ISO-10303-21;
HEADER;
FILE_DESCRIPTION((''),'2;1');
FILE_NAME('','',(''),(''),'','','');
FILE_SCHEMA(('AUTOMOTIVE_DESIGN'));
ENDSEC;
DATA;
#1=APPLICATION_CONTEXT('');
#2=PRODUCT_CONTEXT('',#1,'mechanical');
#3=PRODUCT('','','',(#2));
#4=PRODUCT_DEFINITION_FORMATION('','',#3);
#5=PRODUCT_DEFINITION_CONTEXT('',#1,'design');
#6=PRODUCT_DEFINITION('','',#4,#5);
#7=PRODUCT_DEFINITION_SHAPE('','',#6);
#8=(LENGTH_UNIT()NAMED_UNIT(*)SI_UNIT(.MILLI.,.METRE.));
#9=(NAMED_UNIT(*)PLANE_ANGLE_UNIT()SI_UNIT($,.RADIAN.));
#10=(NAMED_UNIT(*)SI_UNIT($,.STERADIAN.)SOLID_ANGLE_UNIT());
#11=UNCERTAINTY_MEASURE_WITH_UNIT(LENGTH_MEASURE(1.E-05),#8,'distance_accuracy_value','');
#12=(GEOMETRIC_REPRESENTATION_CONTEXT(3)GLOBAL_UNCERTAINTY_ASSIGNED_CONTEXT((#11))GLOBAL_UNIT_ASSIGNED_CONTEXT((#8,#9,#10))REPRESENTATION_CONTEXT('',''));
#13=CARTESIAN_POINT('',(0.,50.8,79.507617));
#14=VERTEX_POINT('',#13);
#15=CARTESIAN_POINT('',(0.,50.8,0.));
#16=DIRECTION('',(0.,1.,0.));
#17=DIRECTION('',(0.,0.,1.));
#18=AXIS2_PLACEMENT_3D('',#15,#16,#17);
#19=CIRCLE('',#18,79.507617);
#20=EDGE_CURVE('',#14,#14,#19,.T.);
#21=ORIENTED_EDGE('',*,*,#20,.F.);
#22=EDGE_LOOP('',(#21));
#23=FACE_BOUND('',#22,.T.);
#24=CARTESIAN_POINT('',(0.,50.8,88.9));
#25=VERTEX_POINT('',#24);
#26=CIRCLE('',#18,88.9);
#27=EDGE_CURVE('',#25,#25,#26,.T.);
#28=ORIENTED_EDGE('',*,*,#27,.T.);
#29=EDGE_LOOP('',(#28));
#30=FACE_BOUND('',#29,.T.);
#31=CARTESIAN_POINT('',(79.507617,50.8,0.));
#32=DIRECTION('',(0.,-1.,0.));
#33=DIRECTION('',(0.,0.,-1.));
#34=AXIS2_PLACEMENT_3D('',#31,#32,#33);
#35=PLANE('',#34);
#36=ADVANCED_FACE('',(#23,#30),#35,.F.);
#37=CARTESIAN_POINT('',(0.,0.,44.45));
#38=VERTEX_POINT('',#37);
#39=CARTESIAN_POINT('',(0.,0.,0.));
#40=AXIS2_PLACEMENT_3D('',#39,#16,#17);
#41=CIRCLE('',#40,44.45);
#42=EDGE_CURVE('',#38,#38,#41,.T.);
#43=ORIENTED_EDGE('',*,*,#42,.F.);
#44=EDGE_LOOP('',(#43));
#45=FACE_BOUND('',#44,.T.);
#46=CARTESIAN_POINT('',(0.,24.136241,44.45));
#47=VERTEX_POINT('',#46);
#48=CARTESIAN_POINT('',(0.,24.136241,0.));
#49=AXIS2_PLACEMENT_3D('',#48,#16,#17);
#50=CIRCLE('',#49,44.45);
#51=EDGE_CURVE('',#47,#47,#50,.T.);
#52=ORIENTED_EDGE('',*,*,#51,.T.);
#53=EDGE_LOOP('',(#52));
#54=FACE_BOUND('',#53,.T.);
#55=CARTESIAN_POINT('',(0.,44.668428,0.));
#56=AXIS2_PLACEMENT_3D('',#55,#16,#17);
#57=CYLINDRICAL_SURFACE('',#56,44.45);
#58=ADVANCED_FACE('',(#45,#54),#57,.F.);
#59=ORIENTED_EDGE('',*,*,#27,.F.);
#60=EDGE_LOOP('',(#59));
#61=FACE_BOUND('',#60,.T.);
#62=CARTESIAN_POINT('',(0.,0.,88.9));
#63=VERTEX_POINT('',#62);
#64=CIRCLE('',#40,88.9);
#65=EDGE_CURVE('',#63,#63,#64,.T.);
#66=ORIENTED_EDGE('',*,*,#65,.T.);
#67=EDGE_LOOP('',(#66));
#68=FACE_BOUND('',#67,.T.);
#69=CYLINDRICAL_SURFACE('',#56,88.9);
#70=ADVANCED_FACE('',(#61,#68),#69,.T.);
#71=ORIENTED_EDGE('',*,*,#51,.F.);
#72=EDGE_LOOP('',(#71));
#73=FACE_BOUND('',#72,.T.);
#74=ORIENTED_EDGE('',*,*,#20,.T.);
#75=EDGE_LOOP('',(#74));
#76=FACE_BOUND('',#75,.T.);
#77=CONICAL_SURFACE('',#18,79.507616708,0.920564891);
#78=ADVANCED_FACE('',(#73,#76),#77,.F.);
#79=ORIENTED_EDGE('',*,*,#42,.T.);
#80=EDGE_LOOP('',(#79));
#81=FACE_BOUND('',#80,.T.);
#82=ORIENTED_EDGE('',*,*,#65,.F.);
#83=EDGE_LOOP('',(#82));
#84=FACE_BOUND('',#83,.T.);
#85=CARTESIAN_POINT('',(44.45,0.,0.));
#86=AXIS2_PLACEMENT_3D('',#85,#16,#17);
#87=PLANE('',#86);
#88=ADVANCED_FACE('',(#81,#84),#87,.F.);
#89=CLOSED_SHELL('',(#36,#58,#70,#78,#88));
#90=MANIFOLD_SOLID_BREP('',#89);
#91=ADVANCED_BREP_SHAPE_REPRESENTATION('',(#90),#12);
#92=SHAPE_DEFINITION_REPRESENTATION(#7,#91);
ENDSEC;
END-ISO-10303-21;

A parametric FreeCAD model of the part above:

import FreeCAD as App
import Part
import Sketcher
Q = App.Units.Quantity


def add_polygon(sketch, points):
    """Adds a closed chain of lines whose ends are joined by coincident constraints."""
    first, n = sketch.GeometryCount, len(points)
    for a, b in zip(points, points[1:] + points[:1]):
        sketch.addGeometry(Part.LineSegment(App.Vector(*a, 0), App.Vector(*b, 0)), False)
    for i in range(n):
        sketch.addConstraint(Sketcher.Constraint("Coincident", first + i, 2, first + (i + 1) % n, 1))

doc = App.newDocument("Part")
body = doc.addObject("PartDesign::Body", "Body")

# Sketch on XY plane
sketch1 = body.newObject("Sketcher::SketchObject", "Sketch")
sketch1.AttachmentSupport = (doc.getObject("XY_Plane"), [""])
sketch1.MapMode = "FlatFace"
add_polygon(sketch1, [(44, 24), (44, 0), (89, 0), (89, 51), (80, 51)])  # lines 0-4
sketch1.addConstraint([
    Sketcher.Constraint("Vertical", 0),
    Sketcher.Constraint("Horizontal", 1),
    Sketcher.Constraint("Vertical", 2),
    Sketcher.Constraint("Horizontal", 3),
    Sketcher.Constraint("PointOnObject", 0, 2, -1),
    Sketcher.Constraint("DistanceY", 2, 1, 2, 2, Q("2 in")),
    Sketcher.Constraint("DistanceX", 1, 1, 1, 2, Q("1.75 in")),
    Sketcher.Constraint("DistanceX", -1, 1, 1, 2, Q("3.5 in")),
    Sketcher.Constraint("DistanceY", 0, 2, 0, 1, Q("24.136241 mm")),
    Sketcher.Constraint("DistanceX", 3, 2, 3, 1, Q("9.392383 mm")),
])
revolution = body.newObject("PartDesign::Revolution", "Revolution")
revolution.Profile = sketch1
revolution.ReferenceAxis = (sketch1, ["V_Axis"])
revolution.Angle = 360

doc.recompute()
